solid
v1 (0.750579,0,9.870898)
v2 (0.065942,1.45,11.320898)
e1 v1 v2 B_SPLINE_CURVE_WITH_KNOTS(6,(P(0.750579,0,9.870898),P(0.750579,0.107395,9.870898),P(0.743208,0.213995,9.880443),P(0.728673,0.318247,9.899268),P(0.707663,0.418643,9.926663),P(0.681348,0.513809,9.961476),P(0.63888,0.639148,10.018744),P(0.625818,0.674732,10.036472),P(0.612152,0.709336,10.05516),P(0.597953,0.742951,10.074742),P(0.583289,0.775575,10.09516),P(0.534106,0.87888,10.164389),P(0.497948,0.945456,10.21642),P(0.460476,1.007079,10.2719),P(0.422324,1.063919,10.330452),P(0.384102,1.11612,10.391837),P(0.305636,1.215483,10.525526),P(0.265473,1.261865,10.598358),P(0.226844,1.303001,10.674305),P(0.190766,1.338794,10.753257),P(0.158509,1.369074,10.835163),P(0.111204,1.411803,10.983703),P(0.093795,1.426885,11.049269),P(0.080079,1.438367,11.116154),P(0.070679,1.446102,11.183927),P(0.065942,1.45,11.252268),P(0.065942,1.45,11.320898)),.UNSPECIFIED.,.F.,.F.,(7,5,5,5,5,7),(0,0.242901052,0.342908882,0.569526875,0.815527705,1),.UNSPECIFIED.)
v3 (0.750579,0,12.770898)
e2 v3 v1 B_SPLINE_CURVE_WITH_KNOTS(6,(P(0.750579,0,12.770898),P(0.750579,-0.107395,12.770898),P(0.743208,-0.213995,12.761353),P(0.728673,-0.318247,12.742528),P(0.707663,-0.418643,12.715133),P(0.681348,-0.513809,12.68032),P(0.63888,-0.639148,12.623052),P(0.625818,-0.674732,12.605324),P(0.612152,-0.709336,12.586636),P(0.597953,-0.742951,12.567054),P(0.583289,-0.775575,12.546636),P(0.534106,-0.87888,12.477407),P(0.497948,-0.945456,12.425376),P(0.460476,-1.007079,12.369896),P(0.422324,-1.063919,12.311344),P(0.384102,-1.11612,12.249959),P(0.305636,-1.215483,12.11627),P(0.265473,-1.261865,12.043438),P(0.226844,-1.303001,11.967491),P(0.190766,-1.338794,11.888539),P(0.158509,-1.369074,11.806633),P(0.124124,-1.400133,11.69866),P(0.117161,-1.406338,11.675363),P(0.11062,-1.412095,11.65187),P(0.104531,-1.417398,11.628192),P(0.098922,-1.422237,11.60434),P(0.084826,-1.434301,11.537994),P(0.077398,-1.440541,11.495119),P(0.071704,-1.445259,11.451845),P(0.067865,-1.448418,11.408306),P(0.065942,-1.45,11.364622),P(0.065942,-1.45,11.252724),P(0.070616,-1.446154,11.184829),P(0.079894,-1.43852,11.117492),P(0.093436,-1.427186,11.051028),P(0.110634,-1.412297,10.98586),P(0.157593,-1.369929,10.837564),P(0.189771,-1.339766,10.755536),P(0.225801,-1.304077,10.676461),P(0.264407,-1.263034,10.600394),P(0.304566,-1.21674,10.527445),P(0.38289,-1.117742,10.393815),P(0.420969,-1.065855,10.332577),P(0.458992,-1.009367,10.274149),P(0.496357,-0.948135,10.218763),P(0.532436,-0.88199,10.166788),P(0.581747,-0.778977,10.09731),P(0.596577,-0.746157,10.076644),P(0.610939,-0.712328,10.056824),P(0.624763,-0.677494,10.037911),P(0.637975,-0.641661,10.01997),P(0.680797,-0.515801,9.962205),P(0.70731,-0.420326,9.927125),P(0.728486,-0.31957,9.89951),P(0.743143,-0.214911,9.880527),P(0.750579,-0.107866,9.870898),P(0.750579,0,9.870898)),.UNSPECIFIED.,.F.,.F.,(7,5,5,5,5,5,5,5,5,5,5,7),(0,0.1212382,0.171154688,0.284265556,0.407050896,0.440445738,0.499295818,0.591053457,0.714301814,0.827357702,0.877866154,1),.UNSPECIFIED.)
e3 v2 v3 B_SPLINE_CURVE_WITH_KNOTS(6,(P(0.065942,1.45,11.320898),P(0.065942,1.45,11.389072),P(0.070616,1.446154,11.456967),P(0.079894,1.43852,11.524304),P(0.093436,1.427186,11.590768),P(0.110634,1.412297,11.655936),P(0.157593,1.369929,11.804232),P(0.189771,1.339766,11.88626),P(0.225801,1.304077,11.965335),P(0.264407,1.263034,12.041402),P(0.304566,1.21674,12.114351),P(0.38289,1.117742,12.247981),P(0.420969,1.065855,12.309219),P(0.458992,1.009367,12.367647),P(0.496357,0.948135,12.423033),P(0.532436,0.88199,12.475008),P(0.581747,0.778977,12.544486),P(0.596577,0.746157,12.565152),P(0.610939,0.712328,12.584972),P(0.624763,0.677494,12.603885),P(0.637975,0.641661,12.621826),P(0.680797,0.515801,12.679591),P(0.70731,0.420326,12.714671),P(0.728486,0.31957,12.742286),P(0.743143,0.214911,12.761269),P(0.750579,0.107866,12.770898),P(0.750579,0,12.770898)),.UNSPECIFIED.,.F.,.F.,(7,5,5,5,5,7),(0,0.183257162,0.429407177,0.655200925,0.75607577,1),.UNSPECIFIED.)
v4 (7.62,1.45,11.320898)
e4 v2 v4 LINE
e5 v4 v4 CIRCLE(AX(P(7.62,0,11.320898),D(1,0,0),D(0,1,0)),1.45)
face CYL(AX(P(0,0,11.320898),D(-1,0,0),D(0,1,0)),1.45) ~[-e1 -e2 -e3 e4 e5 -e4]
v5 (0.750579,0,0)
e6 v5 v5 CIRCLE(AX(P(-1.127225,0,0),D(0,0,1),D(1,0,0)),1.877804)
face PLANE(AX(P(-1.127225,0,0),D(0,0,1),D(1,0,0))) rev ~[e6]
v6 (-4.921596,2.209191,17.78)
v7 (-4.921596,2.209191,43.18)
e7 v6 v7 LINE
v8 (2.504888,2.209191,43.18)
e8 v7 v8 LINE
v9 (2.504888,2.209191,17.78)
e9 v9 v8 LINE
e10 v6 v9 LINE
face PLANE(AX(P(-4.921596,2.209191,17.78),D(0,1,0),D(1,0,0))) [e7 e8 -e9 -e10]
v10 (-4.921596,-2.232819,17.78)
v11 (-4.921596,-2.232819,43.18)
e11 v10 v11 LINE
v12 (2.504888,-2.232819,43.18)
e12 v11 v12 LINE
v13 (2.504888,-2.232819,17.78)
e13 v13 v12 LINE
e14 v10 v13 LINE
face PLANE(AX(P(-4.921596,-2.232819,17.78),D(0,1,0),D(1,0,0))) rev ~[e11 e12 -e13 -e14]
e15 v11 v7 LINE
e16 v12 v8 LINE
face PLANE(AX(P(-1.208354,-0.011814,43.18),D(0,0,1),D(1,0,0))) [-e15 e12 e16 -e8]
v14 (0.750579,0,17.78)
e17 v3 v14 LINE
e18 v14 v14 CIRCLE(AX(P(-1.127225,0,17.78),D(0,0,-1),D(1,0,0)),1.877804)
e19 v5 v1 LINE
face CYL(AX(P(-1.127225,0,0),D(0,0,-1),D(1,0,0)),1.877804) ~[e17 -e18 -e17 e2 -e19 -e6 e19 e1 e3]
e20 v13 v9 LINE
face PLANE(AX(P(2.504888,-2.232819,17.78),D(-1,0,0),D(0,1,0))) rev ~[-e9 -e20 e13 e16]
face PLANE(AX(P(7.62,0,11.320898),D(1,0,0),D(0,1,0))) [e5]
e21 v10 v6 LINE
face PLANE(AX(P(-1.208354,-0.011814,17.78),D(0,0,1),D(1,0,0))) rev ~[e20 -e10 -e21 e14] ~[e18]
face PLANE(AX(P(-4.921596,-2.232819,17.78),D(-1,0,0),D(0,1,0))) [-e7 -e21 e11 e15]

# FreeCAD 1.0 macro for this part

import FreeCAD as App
import Part
import Sketcher
from FreeCAD import Vector
Q = App.Units.Quantity

doc = App.newDocument("Part")
body = doc.addObject("PartDesign::Body", "Body")

# Sketch on YZ plane
sketch1 = body.newObject("Sketcher::SketchObject", "Sketch")
sketch1.AttachmentSupport = (doc.getObject("YZ_Plane"), [""])
sketch1.MapMode = "FlatFace"
sketch1.addGeometry(Part.Circle(Vector(0, 11.320898, 0), Vector(0, 0, 1), 1.45), False)
sketch1.addConstraint([
    Sketcher.Constraint("PointOnObject", 0, 3, -2),
    Sketcher.Constraint("Diameter", 0, Q("2.9 mm")),
    Sketcher.Constraint("DistanceY", -1, 1, 0, 3, Q("11.320898 mm")),
])
pad1 = body.newObject("PartDesign::Pad", "Pad")
pad1.Profile = sketch1
pad1.Length = Q("0.3 in")

# Sketch on XY plane
sketch2 = body.newObject("Sketcher::SketchObject", "Sketch001")
sketch2.AttachmentSupport = (doc.getObject("XY_Plane"), [""])
sketch2.MapMode = "FlatFace"
sketch2.addGeometry(Part.Circle(Vector(-1.127225, 0, 0), Vector(0, 0, 1), 1.877804), False)
sketch2.addConstraint([
    Sketcher.Constraint("PointOnObject", 0, 3, -1),
    Sketcher.Constraint("Diameter", 0, Q("3.755608 mm")),
    Sketcher.Constraint("DistanceX", 0, 3, -1, 1, Q("1.127225 mm")),
])
pad2 = body.newObject("PartDesign::Pad", "Pad001")
pad2.Profile = sketch2
pad2.Length = Q("1 in")

# Sketch on XY plane
sketch3 = body.newObject("Sketcher::SketchObject", "Sketch002")
sketch3.AttachmentSupport = (doc.getObject("XY_Plane"), [""])
sketch3.MapMode = "FlatFace"
sketch3.AttachmentOffset = App.Placement(Vector(0, 0, 0.7 * 25.4), App.Rotation())
sketch3.addGeometry([
    Part.LineSegment(Vector(-4.921596, 2.209191, 0), Vector(-4.921596, -2.232819, 0)),
    Part.LineSegment(Vector(-4.921596, -2.232819, 0), Vector(2.504888, -2.232819, 0)),
    Part.LineSegment(Vector(2.504888, -2.232819, 0), Vector(2.504888, 2.209191, 0)),
    Part.LineSegment(Vector(2.504888, 2.209191, 0), Vector(-4.921596, 2.209191, 0)),
], False)
sketch3.addConstraint([
    Sketcher.Constraint("Coincident", 0, 2, 1, 1),
    Sketcher.Constraint("Coincident", 1, 2, 2, 1),
    Sketcher.Constraint("Coincident", 2, 2, 3, 1),
    Sketcher.Constraint("Coincident", 3, 2, 0, 1),
    Sketcher.Constraint("Vertical", 0),
    Sketcher.Constraint("Horizontal", 1),
    Sketcher.Constraint("Vertical", 2),
    Sketcher.Constraint("Horizontal", 3),
    Sketcher.Constraint("DistanceY", 0, 2, 0, 1, Q("4.44201 mm")),
    Sketcher.Constraint("DistanceX", 1, 1, 1, 2, Q("7.426485 mm")),
    Sketcher.Constraint("DistanceY", 0, 2, -1, 1, Q("2.232819 mm")),
    Sketcher.Constraint("DistanceX", -1, 1, 1, 2, Q("2.504888 mm")),
])
pad3 = body.newObject("PartDesign::Pad", "Pad002")
pad3.Profile = sketch3
pad3.Length = Q("1 in")

doc.recompute()
